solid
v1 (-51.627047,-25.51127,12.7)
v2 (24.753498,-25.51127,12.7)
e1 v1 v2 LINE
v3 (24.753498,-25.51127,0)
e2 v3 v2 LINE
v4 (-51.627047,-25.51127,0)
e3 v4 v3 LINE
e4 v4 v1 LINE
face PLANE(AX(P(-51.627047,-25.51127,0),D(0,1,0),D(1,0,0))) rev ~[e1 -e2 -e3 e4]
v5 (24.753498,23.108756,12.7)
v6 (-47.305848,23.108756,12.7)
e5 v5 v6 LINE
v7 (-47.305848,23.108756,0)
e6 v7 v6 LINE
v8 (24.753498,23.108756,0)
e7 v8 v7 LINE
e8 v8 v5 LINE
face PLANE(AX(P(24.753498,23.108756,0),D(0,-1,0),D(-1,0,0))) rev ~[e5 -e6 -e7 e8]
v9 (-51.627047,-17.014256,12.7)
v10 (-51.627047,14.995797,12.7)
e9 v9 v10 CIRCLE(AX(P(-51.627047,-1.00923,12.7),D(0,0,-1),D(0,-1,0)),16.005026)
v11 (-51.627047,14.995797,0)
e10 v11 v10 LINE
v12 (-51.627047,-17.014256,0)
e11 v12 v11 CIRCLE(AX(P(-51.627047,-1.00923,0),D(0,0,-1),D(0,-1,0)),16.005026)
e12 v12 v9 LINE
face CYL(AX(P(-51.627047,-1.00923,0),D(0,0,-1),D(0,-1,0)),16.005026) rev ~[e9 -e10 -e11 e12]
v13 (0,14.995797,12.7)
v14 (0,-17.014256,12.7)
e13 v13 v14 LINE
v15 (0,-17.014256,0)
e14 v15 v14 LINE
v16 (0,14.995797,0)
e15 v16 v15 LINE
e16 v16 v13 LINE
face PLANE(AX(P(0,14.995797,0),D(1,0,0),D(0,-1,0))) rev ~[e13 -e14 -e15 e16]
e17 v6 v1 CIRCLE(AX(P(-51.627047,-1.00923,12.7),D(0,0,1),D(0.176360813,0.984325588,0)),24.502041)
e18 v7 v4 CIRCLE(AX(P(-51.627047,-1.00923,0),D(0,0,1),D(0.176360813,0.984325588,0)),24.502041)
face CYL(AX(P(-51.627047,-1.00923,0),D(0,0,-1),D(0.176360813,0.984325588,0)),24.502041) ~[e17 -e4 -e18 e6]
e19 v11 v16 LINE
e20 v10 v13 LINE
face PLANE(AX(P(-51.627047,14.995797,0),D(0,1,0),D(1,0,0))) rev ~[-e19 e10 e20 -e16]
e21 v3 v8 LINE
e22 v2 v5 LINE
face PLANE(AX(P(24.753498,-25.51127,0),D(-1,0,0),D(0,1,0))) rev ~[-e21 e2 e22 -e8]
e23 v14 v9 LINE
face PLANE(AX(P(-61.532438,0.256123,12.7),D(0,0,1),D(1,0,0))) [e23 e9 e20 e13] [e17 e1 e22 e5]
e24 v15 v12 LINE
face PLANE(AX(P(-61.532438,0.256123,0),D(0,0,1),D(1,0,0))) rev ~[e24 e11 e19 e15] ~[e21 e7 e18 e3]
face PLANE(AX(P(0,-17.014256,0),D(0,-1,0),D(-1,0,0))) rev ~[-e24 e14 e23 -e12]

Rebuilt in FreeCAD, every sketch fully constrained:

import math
import FreeCAD as App
import Part
import Sketcher

V = App.Vector
Q = App.Units.Quantity

doc = App.newDocument("Part")
body = doc.addObject("PartDesign::Body", "Body")

# Sketch on XY plane
sketch1 = body.newObject("Sketcher::SketchObject", "Sketch")
sketch1.AttachmentSupport = (doc.getObject("XY_Plane"), [""])
sketch1.MapMode = "FlatFace"
sketch1.addGeometry([
    Part.LineSegment(V(25, 23, 0), V(-47, 23, 0)),  # 0
    Part.ArcOfCircle(Part.Circle(V(-52, -1, 0), V(0, 0, 1), 25), math.radians(80), math.radians(270)),  # 1
    Part.LineSegment(V(-52, -26, 0), V(25, -26, 0)),  # 2
    Part.LineSegment(V(25, -26, 0), V(25, 23, 0)),  # 3
    Part.ArcOfCircle(Part.Circle(V(-52, -1, 0), V(0, 0, 1), 16), math.radians(90), math.radians(270)),  # 4
    Part.LineSegment(V(-52, 15, 0), V(0, 15, 0)),  # 5
    Part.LineSegment(V(0, 15, 0), V(0, -17, 0)),  # 6
    Part.LineSegment(V(0, -17, 0), V(-52, -17, 0)),  # 7
], False)
sketch1.addConstraint([
    Sketcher.Constraint("Coincident", 0, 2, 1, 1),
    Sketcher.Constraint("Tangent", 1, 2, 2, 1),
    Sketcher.Constraint("Coincident", 2, 2, 3, 1),
    Sketcher.Constraint("Coincident", 3, 2, 0, 1),
    Sketcher.Constraint("Tangent", 4, 1, 5, 1),
    Sketcher.Constraint("Coincident", 5, 2, 6, 1),
    Sketcher.Constraint("Coincident", 6, 2, 7, 1),
    Sketcher.Constraint("Tangent", 7, 2, 4, 2),
    Sketcher.Constraint("Horizontal", 0),
    Sketcher.Constraint("Horizontal", 2),
    Sketcher.Constraint("Vertical", 3),
    Sketcher.Constraint("Horizontal", 5),
    Sketcher.Constraint("Vertical", 6),
    Sketcher.Constraint("Horizontal", 7),
    Sketcher.Constraint("Coincident", 4, 3, 1, 3),
    Sketcher.Constraint("PointOnObject", 5, 2, -2),
    Sketcher.Constraint("Radius", 1, Q("24.502041 mm")),
    Sketcher.Constraint("Radius", 4, Q("16.005026 mm")),
    Sketcher.Constraint("DistanceX", 1, 3, 0, 2, Q("4.3212 mm")),
    Sketcher.Constraint("DistanceX", 0, 2, 0, 1, Q("72.059345 mm")),
    Sketcher.Constraint("DistanceX", 5, 1, 5, 2, Q("51.627047 mm")),
    Sketcher.Constraint("DistanceY", 1, 3, -1, 1, Q("1.00923 mm")),
])
pad1 = body.newObject("PartDesign::Pad", "Pad")
pad1.Profile = sketch1
pad1.Length = Q("0.5 in")

doc.recompute()
